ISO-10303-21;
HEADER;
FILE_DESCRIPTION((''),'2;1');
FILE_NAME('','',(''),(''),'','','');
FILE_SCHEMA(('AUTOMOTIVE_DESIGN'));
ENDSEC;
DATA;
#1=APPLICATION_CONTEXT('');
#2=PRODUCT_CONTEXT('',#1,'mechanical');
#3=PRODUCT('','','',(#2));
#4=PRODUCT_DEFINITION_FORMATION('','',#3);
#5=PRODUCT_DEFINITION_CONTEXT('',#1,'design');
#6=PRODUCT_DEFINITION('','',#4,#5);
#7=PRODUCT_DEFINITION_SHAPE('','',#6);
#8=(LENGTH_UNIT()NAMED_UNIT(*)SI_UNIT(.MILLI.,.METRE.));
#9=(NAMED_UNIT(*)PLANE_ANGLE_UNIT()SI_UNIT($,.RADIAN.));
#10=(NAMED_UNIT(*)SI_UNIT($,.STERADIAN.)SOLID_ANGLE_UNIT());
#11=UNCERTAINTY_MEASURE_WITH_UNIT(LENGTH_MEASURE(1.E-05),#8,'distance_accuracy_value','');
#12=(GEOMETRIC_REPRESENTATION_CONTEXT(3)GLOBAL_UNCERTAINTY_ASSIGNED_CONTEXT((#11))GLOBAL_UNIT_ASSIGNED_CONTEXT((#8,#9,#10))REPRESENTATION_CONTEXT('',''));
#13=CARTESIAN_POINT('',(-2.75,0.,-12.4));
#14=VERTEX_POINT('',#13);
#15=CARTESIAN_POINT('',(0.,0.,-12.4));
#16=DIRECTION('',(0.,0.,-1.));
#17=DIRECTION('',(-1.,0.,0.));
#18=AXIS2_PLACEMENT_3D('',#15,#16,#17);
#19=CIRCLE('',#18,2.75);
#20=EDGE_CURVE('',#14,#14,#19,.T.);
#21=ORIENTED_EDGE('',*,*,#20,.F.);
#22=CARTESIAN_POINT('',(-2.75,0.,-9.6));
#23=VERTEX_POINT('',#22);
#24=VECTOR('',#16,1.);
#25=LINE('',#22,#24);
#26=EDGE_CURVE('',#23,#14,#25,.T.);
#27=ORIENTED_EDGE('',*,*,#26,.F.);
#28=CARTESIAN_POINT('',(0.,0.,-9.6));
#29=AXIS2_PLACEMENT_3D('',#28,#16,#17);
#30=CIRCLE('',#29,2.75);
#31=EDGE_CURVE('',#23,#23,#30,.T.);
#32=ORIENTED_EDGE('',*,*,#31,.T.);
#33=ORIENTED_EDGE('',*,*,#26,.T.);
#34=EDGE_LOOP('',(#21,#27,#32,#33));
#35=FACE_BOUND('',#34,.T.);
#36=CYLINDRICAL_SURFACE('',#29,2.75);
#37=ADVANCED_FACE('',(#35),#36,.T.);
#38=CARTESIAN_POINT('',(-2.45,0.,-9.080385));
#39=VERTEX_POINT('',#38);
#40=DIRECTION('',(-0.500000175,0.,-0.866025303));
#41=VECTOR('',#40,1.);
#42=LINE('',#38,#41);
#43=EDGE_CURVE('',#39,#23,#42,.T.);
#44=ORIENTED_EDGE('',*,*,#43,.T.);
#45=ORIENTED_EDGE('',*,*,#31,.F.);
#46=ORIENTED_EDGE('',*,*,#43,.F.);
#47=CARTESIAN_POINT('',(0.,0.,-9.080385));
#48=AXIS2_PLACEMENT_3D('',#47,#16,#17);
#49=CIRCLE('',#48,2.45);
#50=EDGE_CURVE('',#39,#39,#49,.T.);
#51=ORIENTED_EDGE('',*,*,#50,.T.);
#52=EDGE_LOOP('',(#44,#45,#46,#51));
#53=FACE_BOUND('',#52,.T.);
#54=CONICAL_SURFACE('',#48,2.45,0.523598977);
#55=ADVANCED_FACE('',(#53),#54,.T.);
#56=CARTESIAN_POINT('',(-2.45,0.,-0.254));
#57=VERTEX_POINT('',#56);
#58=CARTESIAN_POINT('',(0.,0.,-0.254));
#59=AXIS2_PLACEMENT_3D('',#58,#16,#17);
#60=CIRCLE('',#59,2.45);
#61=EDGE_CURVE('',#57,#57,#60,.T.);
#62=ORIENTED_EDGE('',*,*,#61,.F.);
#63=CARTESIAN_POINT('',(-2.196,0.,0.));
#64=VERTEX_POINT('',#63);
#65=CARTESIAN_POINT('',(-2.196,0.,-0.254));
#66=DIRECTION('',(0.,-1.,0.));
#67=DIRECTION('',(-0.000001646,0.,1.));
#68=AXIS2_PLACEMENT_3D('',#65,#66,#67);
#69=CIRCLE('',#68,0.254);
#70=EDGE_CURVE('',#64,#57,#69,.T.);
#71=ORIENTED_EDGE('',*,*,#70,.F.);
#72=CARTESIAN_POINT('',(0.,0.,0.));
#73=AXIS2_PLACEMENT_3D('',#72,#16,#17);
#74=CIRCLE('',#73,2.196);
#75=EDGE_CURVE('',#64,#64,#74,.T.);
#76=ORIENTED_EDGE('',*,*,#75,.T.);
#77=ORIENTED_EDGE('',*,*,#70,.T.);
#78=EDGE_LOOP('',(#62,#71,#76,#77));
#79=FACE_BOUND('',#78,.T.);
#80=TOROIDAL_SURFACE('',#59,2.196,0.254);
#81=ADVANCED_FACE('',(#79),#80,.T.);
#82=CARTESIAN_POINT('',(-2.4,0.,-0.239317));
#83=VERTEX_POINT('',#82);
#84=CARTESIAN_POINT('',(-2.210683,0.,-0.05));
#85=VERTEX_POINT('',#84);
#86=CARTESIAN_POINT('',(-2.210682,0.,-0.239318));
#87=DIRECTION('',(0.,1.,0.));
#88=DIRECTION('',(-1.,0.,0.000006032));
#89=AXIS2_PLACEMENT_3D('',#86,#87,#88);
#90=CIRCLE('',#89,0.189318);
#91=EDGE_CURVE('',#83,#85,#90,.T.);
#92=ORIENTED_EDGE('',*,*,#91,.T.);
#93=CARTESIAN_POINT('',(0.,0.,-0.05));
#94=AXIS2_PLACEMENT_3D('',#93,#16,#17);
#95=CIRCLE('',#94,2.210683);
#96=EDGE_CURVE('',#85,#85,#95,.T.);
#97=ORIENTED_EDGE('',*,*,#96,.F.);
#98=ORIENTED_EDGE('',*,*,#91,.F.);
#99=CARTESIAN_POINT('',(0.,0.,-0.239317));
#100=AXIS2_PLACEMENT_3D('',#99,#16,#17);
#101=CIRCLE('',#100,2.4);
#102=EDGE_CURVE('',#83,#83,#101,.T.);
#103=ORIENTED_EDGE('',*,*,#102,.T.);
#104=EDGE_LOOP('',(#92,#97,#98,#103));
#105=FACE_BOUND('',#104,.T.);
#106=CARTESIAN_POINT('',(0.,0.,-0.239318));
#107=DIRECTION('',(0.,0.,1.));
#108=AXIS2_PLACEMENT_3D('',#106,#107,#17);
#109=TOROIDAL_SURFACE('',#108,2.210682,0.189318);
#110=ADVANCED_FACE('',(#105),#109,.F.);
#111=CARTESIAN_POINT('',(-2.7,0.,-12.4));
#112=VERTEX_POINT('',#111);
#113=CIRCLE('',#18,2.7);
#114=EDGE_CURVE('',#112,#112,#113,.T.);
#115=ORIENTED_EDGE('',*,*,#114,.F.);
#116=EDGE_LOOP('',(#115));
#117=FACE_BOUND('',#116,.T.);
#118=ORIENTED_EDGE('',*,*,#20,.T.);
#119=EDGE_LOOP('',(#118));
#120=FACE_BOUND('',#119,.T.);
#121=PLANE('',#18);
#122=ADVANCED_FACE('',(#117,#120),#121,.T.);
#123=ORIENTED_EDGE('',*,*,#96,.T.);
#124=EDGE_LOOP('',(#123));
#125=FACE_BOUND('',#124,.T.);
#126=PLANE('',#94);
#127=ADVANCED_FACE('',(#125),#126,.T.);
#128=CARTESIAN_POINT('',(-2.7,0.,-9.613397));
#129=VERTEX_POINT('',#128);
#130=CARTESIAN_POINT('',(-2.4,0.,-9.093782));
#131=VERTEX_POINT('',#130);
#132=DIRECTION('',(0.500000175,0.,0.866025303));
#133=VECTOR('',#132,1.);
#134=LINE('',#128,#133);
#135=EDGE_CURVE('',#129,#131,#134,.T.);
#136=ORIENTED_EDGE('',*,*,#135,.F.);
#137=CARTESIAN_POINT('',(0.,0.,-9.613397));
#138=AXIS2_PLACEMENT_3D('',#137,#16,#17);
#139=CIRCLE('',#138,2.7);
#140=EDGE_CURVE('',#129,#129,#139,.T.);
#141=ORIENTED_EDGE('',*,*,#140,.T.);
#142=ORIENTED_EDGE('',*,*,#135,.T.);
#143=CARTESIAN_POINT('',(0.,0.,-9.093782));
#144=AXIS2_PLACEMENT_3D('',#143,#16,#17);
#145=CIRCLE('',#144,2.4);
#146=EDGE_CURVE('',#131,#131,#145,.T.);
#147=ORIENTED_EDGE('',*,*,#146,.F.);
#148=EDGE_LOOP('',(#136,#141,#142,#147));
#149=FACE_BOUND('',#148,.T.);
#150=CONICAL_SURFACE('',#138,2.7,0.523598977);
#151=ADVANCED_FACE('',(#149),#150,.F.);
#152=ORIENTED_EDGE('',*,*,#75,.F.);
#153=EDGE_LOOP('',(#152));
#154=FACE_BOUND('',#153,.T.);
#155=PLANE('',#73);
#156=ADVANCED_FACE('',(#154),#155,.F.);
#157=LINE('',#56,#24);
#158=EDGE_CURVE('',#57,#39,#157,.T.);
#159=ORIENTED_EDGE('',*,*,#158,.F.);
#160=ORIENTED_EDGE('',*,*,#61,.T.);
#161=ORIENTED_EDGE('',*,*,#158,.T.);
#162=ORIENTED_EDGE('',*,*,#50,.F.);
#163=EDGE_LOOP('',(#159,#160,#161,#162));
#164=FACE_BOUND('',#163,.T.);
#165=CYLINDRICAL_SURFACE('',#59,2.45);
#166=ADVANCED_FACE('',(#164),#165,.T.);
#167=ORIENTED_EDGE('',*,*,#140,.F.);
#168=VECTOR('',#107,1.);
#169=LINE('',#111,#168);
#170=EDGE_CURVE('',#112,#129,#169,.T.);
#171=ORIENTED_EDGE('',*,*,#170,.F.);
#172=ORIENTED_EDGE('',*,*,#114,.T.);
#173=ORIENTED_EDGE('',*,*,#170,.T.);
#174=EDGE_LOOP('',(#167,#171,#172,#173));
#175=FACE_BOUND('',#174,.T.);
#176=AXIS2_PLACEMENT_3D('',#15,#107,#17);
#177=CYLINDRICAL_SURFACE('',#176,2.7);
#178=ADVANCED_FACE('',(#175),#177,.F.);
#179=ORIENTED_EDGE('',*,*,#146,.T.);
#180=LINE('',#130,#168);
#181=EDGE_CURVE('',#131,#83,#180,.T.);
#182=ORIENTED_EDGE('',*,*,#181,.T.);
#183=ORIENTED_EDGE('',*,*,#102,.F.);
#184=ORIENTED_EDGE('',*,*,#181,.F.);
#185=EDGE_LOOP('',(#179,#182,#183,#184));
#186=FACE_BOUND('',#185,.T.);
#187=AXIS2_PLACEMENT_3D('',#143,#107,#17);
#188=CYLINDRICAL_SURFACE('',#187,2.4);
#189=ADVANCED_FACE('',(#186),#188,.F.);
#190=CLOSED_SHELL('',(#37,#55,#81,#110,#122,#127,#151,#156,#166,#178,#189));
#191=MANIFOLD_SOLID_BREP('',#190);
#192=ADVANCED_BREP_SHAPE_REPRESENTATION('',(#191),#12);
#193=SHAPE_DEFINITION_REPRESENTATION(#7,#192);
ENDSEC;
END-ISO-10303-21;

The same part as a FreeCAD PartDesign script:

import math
import FreeCAD as App
import Part
import Sketcher
from FreeCAD import Vector
Q = App.Units.Quantity

doc = App.newDocument("Part")
body = doc.addObject("PartDesign::Body", "Body")

sketch1 = doc.addObject("Sketcher::SketchObject", "Sketch")
body.addObject(sketch1)
sketch1.AttachmentSupport = (doc.XZ_Plane, [""])
sketch1.MapMode = "FlatFace"
sketch1.addGeometry([
    Part.LineSegment(Vector(0, -0.05, 0), Vector(0, 0, 0)),
    Part.LineSegment(Vector(0, 0, 0), Vector(-2.196, 0, 0)),
    Part.ArcOfCircle(Part.Circle(Vector(-2.196, -0.254, 0), Vector(0, 0, 1), 0.254), math.radians(90), math.radians(180)),
    Part.LineSegment(Vector(-2.45, -0.254, 0), Vector(-2.45, -9.08, 0)),
    Part.LineSegment(Vector(-2.45, -9.08, 0), Vector(-2.75, -9.6, 0)),
    Part.LineSegment(Vector(-2.75, -9.6, 0), Vector(-2.75, -12.4, 0)),
    Part.LineSegment(Vector(-2.75, -12.4, 0), Vector(-2.7, -12.4, 0)),
    Part.LineSegment(Vector(-2.7, -12.4, 0), Vector(-2.7, -9.613, 0)),
    Part.LineSegment(Vector(-2.7, -9.613, 0), Vector(-2.4, -9.094, 0)),
    Part.LineSegment(Vector(-2.4, -9.094, 0), Vector(-2.4, -0.239, 0)),
    Part.ArcOfCircle(Part.Circle(Vector(-2.211, -0.239, 0), Vector(0, 0, 1), 0.189), math.radians(90), math.radians(180)),
    Part.LineSegment(Vector(-2.211, -0.05, 0), Vector(0, -0.05, 0)),
], False)
sketch1.addConstraint([
    Sketcher.Constraint("Coincident", 0, 2, 1, 1),
    Sketcher.Constraint("Tangent", 1, 2, 2, 1),
    Sketcher.Constraint("Tangent", 2, 2, 3, 1),
    Sketcher.Constraint("Coincident", 3, 2, 4, 1),
    Sketcher.Constraint("Coincident", 4, 2, 5, 1),
    Sketcher.Constraint("Coincident", 5, 2, 6, 1),
    Sketcher.Constraint("Coincident", 6, 2, 7, 1),
    Sketcher.Constraint("Coincident", 7, 2, 8, 1),
    Sketcher.Constraint("Coincident", 8, 2, 9, 1),
    Sketcher.Constraint("Coincident", 9, 2, 10, 2),
    Sketcher.Constraint("Coincident", 10, 1, 11, 1),
    Sketcher.Constraint("Coincident", 11, 2, 0, 1),
    Sketcher.Constraint("Vertical", 0),
    Sketcher.Constraint("Horizontal", 1),
    Sketcher.Constraint("Vertical", 3),
    Sketcher.Constraint("Vertical", 5),
    Sketcher.Constraint("Horizontal", 6),
    Sketcher.Constraint("Vertical", 7),
    Sketcher.Constraint("Vertical", 9),
    Sketcher.Constraint("Horizontal", 11),
    Sketcher.Constraint("Coincident", 0, 2, -1, 1),
    Sketcher.Constraint("Parallel", 4, 8),
    Sketcher.Constraint("Horizontal", 10, 3, 9, 2),
    Sketcher.Constraint("Equal", 6, 0),
    Sketcher.Constraint("Equal", 4, 8),
    Sketcher.Constraint("Angle", 4, Q("-120.000012 deg")),
    Sketcher.Constraint("DistanceY", 5, 2, 5, 1, 2.8),
    Sketcher.Constraint("Radius", 2, 0.254),
    Sketcher.Constraint("Distance", 4, 0.6),
    Sketcher.Constraint("DistanceX", 6, 1, 6, 2, 0.05),
    Sketcher.Constraint("DistanceY", 4, 2, -1, 1, 9.6),
    Sketcher.Constraint("DistanceX", 6, 2, -1, 1, 2.7),
    Sketcher.Constraint("Radius", 10, 0.189318),
    Sketcher.Constraint("DistanceX", 11, 1, 11, 2, 2.210683),
    Sketcher.Constraint("DistanceY", 7, 1, 7, 2, 2.786603),
])
revolution = doc.addObject("PartDesign::Revolution", "Revolution")
body.addObject(revolution)
revolution.Profile = sketch1
revolution.ReferenceAxis = (sketch1, ["V_Axis"])
revolution.Angle = 360

doc.recompute()
